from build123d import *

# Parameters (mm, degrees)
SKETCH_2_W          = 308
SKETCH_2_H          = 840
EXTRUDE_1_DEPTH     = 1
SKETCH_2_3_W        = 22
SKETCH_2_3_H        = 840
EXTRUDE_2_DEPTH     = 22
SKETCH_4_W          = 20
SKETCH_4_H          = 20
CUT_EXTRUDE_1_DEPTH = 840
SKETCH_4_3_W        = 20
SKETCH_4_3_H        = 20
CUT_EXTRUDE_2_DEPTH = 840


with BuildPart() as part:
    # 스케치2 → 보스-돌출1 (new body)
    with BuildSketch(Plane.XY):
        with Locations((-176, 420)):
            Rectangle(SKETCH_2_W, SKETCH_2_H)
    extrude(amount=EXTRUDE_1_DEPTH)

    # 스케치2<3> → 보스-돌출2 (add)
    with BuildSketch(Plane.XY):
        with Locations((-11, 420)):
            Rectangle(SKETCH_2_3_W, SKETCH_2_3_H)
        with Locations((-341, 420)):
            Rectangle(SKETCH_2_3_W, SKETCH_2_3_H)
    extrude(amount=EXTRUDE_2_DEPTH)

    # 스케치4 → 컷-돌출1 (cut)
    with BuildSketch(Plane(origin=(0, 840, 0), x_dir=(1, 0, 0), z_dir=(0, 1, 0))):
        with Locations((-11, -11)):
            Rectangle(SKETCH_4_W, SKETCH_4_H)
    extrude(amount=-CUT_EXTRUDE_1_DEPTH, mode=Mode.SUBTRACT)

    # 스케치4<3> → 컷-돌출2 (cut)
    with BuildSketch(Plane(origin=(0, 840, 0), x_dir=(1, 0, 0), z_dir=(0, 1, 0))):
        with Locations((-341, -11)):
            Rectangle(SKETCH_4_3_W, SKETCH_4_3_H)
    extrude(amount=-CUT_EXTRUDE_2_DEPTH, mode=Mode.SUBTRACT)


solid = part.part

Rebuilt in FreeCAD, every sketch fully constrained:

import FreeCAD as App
import Part
import Sketcher

V = App.Vector


def add_polygon(sketch, points):
    """Adds a closed chain of lines whose ends are joined by coincident constraints."""
    first, n = sketch.GeometryCount, len(points)
    for a, b in zip(points, points[1:] + points[:1]):
        sketch.addGeometry(Part.LineSegment(App.Vector(*a, 0), App.Vector(*b, 0)), False)
    for i in range(n):
        sketch.addConstraint(Sketcher.Constraint("Coincident", first + i, 2, first + (i + 1) % n, 1))

doc = App.newDocument("Part")
body = doc.addObject("PartDesign::Body", "Body")

# Sketch on XY plane
sketch1 = body.newObject("Sketcher::SketchObject", "Sketch")
sketch1.AttachmentSupport = (doc.getObject("XY_Plane"), [""])
sketch1.MapMode = "FlatFace"
add_polygon(sketch1, [(-330, 840), (-330, 0), (-22, 0), (-22, 840)])  # lines 0-3
sketch1.addConstraint(Sketcher.Constraint("Vertical", 0))
sketch1.addConstraint(Sketcher.Constraint("Horizontal", 1))
sketch1.addConstraint(Sketcher.Constraint("Vertical", 2))
sketch1.addConstraint(Sketcher.Constraint("Horizontal", 3))
sketch1.addConstraint(Sketcher.Constraint("PointOnObject", 0, 2, -1))
sketch1.addConstraint(Sketcher.Constraint("DistanceX", 1, 1, 1, 2, 308.0))
sketch1.addConstraint(Sketcher.Constraint("DistanceY", 0, 2, 0, 1, 840.0))
sketch1.addConstraint(Sketcher.Constraint("DistanceX", 0, 2, -1, 1, 330.0))
pad1 = body.newObject("PartDesign::Pad", "Pad")
pad1.Profile = sketch1
pad1.Length = 1

# Sketch on XY plane
sketch2 = body.newObject("Sketcher::SketchObject", "Sketch001")
sketch2.AttachmentSupport = (doc.getObject("XY_Plane"), [""])
sketch2.MapMode = "FlatFace"
add_polygon(sketch2, [(-22, 840), (-22, 0), (0, 0), (0, 840)])  # lines 0-3
add_polygon(sketch2, [(-352, 840), (-352, 0), (-330, 0), (-330, 840)])  # lines 4-7
sketch2.addConstraint(Sketcher.Constraint("Vertical", 0))
sketch2.addConstraint(Sketcher.Constraint("Horizontal", 1))
sketch2.addConstraint(Sketcher.Constraint("Vertical", 2))
sketch2.addConstraint(Sketcher.Constraint("Horizontal", 3))
sketch2.addConstraint(Sketcher.Constraint("Vertical", 4))
sketch2.addConstraint(Sketcher.Constraint("Horizontal", 5))
sketch2.addConstraint(Sketcher.Constraint("Vertical", 6))
sketch2.addConstraint(Sketcher.Constraint("Horizontal", 7))
sketch2.addConstraint(Sketcher.Constraint("Coincident", 1, 2, -1, 1))
sketch2.addConstraint(Sketcher.Constraint("PointOnObject", 4, 2, -1))
sketch2.addConstraint(Sketcher.Constraint("Horizontal", 3, 2, 6, 2))
sketch2.addConstraint(Sketcher.Constraint("Equal", 3, 5))
sketch2.addConstraint(Sketcher.Constraint("DistanceX", 1, 1, 1, 2, 22.0))
sketch2.addConstraint(Sketcher.Constraint("DistanceY", 0, 2, 0, 1, 840.0))
sketch2.addConstraint(Sketcher.Constraint("DistanceX", 4, 2, -1, 1, 352.0))
pad2 = body.newObject("PartDesign::Pad", "Pad001")
pad2.Profile = sketch2
pad2.Length = 22

# Sketch on XZ plane
sketch3 = body.newObject("Sketcher::SketchObject", "Sketch002")
sketch3.AttachmentSupport = (doc.getObject("XZ_Plane"), [""])
sketch3.MapMode = "FlatFace"
sketch3.AttachmentOffset = App.Placement(V(0, 0, -840), App.Rotation())
add_polygon(sketch3, [(-21, 1), (-21, 21), (-1, 21), (-1, 1)])  # lines 0-3
sketch3.addConstraint(Sketcher.Constraint("Vertical", 0))
sketch3.addConstraint(Sketcher.Constraint("Horizontal", 1))
sketch3.addConstraint(Sketcher.Constraint("Vertical", 2))
sketch3.addConstraint(Sketcher.Constraint("Horizontal", 3))
sketch3.addConstraint(Sketcher.Constraint("Equal", 3, 0))
sketch3.addConstraint(Sketcher.Constraint("DistanceX", 1, 1, 1, 2, 20.0))
sketch3.addConstraint(Sketcher.Constraint("DistanceX", 0, 2, -1, 1, 21.0))
sketch3.addConstraint(Sketcher.Constraint("DistanceY", -1, 1, 0, 2, 21.0))
pocket1 = body.newObject("PartDesign::Pocket", "Pocket")
pocket1.Profile = sketch3
pocket1.Length = 840
pocket1.Reversed = True

# Sketch on XZ plane
sketch4 = body.newObject("Sketcher::SketchObject", "Sketch003")
sketch4.AttachmentSupport = (doc.getObject("XZ_Plane"), [""])
sketch4.MapMode = "FlatFace"
sketch4.AttachmentOffset = App.Placement(V(0, 0, -840), App.Rotation())
add_polygon(sketch4, [(-351, 1), (-351, 21), (-331, 21), (-331, 1)])  # lines 0-3
sketch4.addConstraint(Sketcher.Constraint("Vertical", 0))
sketch4.addConstraint(Sketcher.Constraint("Horizontal", 1))
sketch4.addConstraint(Sketcher.Constraint("Vertical", 2))
sketch4.addConstraint(Sketcher.Constraint("Horizontal", 3))
sketch4.addConstraint(Sketcher.Constraint("Equal", 3, 0))
sketch4.addConstraint(Sketcher.Constraint("DistanceX", 1, 1, 1, 2, 20.0))
sketch4.addConstraint(Sketcher.Constraint("DistanceX", 0, 2, -1, 1, 351.0))
sketch4.addConstraint(Sketcher.Constraint("DistanceY", -1, 1, 0, 2, 21.0))
pocket2 = body.newObject("PartDesign::Pocket", "Pocket001")
pocket2.Profile = sketch4
pocket2.Length = 840
pocket2.Reversed = True

doc.recompute()
